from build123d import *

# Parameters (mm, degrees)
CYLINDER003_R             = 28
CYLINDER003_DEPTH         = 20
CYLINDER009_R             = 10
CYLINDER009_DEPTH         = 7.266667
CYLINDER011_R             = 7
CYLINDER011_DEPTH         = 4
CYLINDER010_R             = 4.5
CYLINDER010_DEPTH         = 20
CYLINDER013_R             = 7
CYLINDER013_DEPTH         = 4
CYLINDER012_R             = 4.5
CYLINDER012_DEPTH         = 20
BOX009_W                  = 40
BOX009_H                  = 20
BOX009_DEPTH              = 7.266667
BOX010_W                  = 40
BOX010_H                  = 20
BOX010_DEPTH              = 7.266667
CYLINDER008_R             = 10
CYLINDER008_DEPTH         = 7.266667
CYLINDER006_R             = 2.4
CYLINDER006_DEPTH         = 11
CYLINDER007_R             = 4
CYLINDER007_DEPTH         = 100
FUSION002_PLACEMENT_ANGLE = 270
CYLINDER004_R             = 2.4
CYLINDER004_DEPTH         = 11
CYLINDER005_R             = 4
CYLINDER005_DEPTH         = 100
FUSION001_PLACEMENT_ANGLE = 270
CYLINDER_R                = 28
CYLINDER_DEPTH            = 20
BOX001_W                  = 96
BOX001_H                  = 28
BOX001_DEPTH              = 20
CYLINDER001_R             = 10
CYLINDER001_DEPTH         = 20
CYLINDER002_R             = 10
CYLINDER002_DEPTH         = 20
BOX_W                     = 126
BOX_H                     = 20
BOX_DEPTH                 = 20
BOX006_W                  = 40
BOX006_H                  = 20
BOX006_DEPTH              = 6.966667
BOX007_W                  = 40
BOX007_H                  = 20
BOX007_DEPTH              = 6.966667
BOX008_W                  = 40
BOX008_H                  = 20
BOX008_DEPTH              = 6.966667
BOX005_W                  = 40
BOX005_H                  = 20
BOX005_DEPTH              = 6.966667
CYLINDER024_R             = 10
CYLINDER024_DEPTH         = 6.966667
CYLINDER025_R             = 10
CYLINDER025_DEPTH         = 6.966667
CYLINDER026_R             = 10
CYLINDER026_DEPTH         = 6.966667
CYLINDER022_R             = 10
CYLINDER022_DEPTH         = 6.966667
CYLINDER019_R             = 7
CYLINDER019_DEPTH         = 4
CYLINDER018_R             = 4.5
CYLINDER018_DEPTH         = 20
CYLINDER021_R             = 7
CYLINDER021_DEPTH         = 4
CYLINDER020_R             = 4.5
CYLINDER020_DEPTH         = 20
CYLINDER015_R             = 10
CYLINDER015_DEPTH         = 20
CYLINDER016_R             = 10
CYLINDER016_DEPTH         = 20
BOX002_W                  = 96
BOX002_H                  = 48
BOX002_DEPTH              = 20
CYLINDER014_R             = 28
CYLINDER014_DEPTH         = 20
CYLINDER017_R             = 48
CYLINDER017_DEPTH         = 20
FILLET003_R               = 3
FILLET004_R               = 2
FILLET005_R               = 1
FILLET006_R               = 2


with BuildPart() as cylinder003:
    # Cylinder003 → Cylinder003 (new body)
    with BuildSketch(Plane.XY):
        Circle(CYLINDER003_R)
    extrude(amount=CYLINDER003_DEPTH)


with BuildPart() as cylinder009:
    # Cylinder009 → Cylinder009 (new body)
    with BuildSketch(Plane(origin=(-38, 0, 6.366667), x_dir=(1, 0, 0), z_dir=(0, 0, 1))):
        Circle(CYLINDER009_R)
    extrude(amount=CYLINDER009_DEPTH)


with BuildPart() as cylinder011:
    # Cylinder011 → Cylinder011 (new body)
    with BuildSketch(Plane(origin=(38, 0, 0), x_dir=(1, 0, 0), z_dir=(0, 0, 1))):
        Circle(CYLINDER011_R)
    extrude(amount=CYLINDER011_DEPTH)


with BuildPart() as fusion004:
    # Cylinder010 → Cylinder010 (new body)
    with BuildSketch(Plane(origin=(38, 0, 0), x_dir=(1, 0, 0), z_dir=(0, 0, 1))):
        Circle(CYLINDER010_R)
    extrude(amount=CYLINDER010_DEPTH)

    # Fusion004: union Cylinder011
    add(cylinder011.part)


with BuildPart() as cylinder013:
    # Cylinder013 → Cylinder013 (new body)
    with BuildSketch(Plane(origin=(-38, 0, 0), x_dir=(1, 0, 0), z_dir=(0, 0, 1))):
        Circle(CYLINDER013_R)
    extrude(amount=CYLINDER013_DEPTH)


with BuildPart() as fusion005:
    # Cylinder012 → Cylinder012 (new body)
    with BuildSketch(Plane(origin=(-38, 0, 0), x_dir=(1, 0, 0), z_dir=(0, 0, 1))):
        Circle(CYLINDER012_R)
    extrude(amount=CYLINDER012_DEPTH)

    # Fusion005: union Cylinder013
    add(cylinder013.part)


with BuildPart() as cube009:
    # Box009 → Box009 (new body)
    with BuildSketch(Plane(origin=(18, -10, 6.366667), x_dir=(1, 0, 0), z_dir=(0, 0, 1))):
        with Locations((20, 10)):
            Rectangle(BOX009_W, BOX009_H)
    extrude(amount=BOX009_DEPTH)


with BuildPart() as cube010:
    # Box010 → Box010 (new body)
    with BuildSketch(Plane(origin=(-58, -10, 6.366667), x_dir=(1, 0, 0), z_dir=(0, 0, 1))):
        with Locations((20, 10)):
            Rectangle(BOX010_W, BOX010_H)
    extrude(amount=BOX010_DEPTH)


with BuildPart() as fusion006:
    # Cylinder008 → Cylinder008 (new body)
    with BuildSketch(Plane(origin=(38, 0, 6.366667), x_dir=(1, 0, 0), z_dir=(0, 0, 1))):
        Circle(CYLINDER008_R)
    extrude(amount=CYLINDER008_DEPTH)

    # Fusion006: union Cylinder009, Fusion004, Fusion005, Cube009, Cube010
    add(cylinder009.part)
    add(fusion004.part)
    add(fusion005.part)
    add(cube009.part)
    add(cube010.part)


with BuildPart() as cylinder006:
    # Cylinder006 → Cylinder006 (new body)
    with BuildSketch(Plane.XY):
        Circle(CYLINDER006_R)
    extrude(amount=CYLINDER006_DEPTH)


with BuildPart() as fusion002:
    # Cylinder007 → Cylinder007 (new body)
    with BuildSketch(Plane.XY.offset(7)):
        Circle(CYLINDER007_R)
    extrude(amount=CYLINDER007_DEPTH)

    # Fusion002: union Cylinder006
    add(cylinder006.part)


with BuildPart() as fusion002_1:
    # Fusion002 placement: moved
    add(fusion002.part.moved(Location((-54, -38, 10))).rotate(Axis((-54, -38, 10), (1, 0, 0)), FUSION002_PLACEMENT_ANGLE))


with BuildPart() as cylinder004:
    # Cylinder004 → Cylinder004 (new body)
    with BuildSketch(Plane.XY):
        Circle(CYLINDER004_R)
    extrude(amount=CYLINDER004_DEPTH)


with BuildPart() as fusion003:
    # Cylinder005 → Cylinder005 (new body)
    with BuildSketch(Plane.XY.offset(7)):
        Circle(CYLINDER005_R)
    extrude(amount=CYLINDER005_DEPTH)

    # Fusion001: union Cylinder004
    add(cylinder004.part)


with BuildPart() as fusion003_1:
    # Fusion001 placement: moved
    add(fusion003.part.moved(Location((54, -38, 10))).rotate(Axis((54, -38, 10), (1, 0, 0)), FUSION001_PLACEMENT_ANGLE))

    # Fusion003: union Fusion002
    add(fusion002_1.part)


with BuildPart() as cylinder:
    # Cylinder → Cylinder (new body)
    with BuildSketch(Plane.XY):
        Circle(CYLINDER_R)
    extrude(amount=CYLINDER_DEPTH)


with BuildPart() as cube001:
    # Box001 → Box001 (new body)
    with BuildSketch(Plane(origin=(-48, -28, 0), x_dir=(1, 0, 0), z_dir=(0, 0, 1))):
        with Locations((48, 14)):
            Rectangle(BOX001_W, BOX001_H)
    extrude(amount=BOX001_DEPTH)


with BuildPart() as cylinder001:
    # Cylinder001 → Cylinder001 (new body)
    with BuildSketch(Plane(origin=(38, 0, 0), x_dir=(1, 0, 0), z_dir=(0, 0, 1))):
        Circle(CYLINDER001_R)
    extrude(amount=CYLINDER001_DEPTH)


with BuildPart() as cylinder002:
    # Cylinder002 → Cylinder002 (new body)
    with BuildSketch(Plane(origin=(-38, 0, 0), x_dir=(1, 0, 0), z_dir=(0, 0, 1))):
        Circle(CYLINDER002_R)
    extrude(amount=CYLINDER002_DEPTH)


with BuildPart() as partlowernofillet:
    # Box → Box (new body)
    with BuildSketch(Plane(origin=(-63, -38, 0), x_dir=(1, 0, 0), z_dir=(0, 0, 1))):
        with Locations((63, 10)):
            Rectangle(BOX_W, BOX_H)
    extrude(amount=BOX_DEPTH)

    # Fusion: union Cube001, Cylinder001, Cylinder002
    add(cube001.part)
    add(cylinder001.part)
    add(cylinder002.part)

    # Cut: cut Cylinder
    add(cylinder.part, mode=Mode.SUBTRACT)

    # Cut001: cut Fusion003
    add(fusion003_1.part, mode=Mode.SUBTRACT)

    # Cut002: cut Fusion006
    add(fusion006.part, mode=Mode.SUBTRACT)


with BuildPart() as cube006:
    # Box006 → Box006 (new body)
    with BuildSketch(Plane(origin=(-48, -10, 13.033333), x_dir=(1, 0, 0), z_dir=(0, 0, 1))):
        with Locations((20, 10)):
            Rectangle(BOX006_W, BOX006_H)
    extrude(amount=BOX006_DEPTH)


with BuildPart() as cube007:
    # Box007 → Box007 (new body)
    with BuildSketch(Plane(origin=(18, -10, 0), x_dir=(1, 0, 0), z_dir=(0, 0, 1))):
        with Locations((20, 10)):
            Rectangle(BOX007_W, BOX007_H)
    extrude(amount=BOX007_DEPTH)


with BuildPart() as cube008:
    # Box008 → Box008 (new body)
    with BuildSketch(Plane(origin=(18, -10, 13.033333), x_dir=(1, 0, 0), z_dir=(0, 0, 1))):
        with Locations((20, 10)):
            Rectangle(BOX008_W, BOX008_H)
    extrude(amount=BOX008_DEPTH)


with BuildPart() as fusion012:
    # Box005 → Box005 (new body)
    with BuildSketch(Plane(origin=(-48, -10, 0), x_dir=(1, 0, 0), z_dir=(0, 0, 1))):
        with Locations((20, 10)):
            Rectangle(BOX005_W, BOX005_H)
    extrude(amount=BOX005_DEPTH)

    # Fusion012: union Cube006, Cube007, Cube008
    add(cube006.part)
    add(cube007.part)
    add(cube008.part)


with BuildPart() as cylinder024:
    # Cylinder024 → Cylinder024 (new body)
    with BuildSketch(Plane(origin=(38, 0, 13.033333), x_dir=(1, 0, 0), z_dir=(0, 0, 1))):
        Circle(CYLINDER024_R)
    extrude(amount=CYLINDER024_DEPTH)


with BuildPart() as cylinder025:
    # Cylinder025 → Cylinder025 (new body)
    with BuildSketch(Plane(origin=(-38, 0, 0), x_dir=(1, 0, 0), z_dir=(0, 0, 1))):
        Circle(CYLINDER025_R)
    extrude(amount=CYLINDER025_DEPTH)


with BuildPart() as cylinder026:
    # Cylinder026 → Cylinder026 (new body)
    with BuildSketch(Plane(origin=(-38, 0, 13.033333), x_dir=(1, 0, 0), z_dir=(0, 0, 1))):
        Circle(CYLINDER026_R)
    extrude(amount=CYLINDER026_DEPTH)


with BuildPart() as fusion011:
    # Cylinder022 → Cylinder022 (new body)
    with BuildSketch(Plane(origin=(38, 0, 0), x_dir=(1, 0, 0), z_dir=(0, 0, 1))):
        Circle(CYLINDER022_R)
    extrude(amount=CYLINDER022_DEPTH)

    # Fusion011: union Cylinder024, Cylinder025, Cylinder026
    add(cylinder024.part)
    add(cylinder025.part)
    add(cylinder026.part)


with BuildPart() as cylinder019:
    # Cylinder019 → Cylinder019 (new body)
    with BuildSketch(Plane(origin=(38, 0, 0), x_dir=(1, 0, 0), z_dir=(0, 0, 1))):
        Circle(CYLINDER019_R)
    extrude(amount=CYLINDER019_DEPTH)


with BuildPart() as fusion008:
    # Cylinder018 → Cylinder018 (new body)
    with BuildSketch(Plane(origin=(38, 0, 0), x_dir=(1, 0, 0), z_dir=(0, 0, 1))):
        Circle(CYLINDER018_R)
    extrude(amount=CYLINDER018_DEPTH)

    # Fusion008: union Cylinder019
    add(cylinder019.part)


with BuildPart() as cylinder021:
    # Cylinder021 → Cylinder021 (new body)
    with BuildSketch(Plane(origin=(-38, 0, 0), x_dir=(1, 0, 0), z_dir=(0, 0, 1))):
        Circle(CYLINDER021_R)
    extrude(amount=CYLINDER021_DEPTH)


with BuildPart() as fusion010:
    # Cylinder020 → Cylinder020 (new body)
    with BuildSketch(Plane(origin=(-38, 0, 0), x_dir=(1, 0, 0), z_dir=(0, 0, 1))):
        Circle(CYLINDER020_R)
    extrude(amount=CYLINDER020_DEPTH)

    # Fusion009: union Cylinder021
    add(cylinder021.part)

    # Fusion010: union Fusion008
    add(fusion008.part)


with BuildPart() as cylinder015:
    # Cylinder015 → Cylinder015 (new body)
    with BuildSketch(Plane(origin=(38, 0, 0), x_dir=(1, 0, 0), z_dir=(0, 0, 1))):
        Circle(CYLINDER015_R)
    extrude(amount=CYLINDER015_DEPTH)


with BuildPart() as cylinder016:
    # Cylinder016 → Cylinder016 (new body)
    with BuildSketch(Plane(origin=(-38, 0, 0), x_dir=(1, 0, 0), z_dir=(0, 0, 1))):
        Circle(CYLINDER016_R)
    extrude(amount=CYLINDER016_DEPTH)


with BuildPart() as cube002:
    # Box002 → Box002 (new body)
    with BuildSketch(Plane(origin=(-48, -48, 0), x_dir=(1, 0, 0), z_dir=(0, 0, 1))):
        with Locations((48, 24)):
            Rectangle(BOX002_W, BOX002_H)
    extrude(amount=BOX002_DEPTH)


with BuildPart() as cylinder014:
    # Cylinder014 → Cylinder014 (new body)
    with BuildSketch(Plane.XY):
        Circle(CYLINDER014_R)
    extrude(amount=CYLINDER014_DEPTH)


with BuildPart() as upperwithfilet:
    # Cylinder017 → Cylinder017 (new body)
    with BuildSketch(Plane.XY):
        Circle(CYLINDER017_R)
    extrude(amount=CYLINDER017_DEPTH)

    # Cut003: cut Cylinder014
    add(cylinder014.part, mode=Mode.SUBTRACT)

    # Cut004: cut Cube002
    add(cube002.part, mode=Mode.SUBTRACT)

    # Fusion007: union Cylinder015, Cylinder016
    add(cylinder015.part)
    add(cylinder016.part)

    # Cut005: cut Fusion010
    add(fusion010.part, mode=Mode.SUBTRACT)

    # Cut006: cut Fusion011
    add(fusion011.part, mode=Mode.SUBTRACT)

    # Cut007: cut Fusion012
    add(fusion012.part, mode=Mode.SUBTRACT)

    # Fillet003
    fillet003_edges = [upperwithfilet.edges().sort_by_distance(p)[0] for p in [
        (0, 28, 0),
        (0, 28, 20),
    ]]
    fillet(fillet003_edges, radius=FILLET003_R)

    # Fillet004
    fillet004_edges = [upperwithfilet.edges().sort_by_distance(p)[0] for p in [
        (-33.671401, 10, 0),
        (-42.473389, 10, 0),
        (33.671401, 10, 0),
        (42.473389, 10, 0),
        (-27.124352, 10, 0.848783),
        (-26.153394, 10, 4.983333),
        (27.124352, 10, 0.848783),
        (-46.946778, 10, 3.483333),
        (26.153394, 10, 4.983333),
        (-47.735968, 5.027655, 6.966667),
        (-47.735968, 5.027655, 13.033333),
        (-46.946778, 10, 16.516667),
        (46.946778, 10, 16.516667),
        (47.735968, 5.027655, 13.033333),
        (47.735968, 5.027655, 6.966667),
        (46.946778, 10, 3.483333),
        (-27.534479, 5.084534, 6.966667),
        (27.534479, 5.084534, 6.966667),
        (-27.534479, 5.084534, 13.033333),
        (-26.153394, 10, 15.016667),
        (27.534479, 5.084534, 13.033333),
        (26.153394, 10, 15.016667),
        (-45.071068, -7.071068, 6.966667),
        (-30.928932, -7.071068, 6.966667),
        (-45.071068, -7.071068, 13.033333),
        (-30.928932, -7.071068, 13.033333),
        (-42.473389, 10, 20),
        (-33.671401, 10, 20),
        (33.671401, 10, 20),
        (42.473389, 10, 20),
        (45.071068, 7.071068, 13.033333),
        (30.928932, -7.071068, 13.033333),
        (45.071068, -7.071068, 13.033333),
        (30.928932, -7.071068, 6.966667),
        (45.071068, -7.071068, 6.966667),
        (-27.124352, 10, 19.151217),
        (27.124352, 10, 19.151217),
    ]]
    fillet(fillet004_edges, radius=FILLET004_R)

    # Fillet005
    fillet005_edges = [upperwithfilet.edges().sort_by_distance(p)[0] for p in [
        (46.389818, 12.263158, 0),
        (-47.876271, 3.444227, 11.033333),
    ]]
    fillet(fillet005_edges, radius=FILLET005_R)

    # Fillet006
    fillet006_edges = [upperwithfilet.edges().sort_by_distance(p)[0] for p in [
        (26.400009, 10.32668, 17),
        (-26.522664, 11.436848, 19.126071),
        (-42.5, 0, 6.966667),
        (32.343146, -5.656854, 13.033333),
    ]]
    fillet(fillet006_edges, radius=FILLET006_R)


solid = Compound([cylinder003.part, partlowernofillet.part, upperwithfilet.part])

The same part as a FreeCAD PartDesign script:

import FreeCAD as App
import Part
import Sketcher
Q = App.Units.Quantity


def edges_at(feature, points):
    """Names of the edges that pass closest to the given points."""
    edges = feature.Shape.Edges
    near = lambda p: min(range(len(edges)), key=lambda i: edges[i].distToShape(Part.Vertex(*p))[0])
    return sorted({f"Edge{near(p) + 1}" for p in points})


def add_polygon(sketch, points):
    """Adds a closed chain of lines whose ends are joined by coincident constraints."""
    first, n = sketch.GeometryCount, len(points)
    for a, b in zip(points, points[1:] + points[:1]):
        sketch.addGeometry(Part.LineSegment(App.Vector(*a, 0), App.Vector(*b, 0)), False)
    for i in range(n):
        sketch.addConstraint(Sketcher.Constraint("Coincident", first + i, 2, first + (i + 1) % n, 1))

doc = App.newDocument("Part")
body = doc.addObject("PartDesign::Body", "Body")

sketch1 = doc.addObject("Sketcher::SketchObject", "Sketch")
body.addObject(sketch1)
sketch1.AttachmentSupport = (doc.XY_Plane, [""])
sketch1.MapMode = "FlatFace"
sketch1.addGeometry(Part.Circle(App.Vector(0, 0, 0), App.Vector(0, 0, 1), 28), False)
sketch1.addConstraint([
    Sketcher.Constraint("Coincident", 0, 3, -1, 1),
    Sketcher.Constraint("Diameter", 0, Q("56 mm")),
])
pad1 = doc.addObject("PartDesign::Pad", "Pad")
body.addObject(pad1)
pad1.Profile = sketch1
pad1.Length = 20
body2 = doc.addObject("PartDesign::Body", "Body001")

sketch2 = doc.addObject("Sketcher::SketchObject", "Sketch001")
body2.addObject(sketch2)
sketch2.AttachmentSupport = (doc.getObject("XY_Plane001"), [""])
sketch2.MapMode = "FlatFace"
sketch2.AttachmentOffset = App.Placement(App.Vector(0, 0, 6.366667), App.Rotation())
sketch2.addGeometry(Part.Circle(App.Vector(-38, 0, 0), App.Vector(0, 0, 1), 10), False)
sketch2.addConstraint([
    Sketcher.Constraint("PointOnObject", 0, 3, -1),
    Sketcher.Constraint("Diameter", 0, Q("20 mm")),
    Sketcher.Constraint("DistanceX", 0, 3, -1, 1, Q("38 mm")),
])
pad2 = doc.addObject("PartDesign::Pad", "Pad001")
body2.addObject(pad2)
pad2.Profile = sketch2
pad2.Length = 7.266667
body3 = doc.addObject("PartDesign::Body", "Body002")

sketch3 = doc.addObject("Sketcher::SketchObject", "Sketch002")
body3.addObject(sketch3)
sketch3.AttachmentSupport = (doc.getObject("XY_Plane002"), [""])
sketch3.MapMode = "FlatFace"
sketch3.addGeometry(Part.Circle(App.Vector(38, 0, 0), App.Vector(0, 0, 1), 7), False)
sketch3.addConstraint([
    Sketcher.Constraint("PointOnObject", 0, 3, -1),
    Sketcher.Constraint("Diameter", 0, Q("14 mm")),
    Sketcher.Constraint("DistanceX", -1, 1, 0, 3, Q("38 mm")),
])
pad3 = doc.addObject("PartDesign::Pad", "Pad002")
body3.addObject(pad3)
pad3.Profile = sketch3
pad3.Length = 4
body4 = doc.addObject("PartDesign::Body", "Body003")

sketch4 = doc.addObject("Sketcher::SketchObject", "Sketch003")
body4.addObject(sketch4)
sketch4.AttachmentSupport = (doc.getObject("XY_Plane003"), [""])
sketch4.MapMode = "FlatFace"
sketch4.addGeometry(Part.Circle(App.Vector(38, 0, 0), App.Vector(0, 0, 1), 4.5), False)
sketch4.addConstraint([
    Sketcher.Constraint("PointOnObject", 0, 3, -1),
    Sketcher.Constraint("Diameter", 0, Q("9 mm")),
    Sketcher.Constraint("DistanceX", -1, 1, 0, 3, Q("38 mm")),
])
pad4 = doc.addObject("PartDesign::Pad", "Pad003")
body4.addObject(pad4)
pad4.Profile = sketch4
pad4.Length = 20
doc.recompute()

boolean = doc.addObject("PartDesign::Boolean", "Boolean")
body4.addObject(boolean)
boolean.Type = "Fuse"
boolean.addObjects([body3])
body5 = doc.addObject("PartDesign::Body", "Body004")

sketch5 = doc.addObject("Sketcher::SketchObject", "Sketch004")
body5.addObject(sketch5)
sketch5.AttachmentSupport = (doc.getObject("XY_Plane004"), [""])
sketch5.MapMode = "FlatFace"
sketch5.addGeometry(Part.Circle(App.Vector(-38, 0, 0), App.Vector(0, 0, 1), 7), False)
sketch5.addConstraint([
    Sketcher.Constraint("PointOnObject", 0, 3, -1),
    Sketcher.Constraint("Diameter", 0, Q("14 mm")),
    Sketcher.Constraint("DistanceX", 0, 3, -1, 1, Q("38 mm")),
])
pad5 = doc.addObject("PartDesign::Pad", "Pad004")
body5.addObject(pad5)
pad5.Profile = sketch5
pad5.Length = 4
body6 = doc.addObject("PartDesign::Body", "Body005")

sketch6 = doc.addObject("Sketcher::SketchObject", "Sketch005")
body6.addObject(sketch6)
sketch6.AttachmentSupport = (doc.getObject("XY_Plane005"), [""])
sketch6.MapMode = "FlatFace"
sketch6.addGeometry(Part.Circle(App.Vector(-38, 0, 0), App.Vector(0, 0, 1), 4.5), False)
sketch6.addConstraint([
    Sketcher.Constraint("PointOnObject", 0, 3, -1),
    Sketcher.Constraint("Diameter", 0, Q("9 mm")),
    Sketcher.Constraint("DistanceX", 0, 3, -1, 1, Q("38 mm")),
])
pad6 = doc.addObject("PartDesign::Pad", "Pad005")
body6.addObject(pad6)
pad6.Profile = sketch6
pad6.Length = 20
doc.recompute()

boolean2 = doc.addObject("PartDesign::Boolean", "Boolean001")
body6.addObject(boolean2)
boolean2.Type = "Fuse"
boolean2.addObjects([body5])
body7 = doc.addObject("PartDesign::Body", "Body006")

sketch7 = doc.addObject("Sketcher::SketchObject", "Sketch006")
body7.addObject(sketch7)
sketch7.AttachmentSupport = (doc.getObject("XY_Plane006"), [""])
sketch7.MapMode = "FlatFace"
sketch7.AttachmentOffset = App.Placement(App.Vector(0, 0, 6.366667), App.Rotation())
add_polygon(sketch7, [(18, 10), (18, -10), (58, -10), (58, 10)])
sketch7.addConstraint([
    Sketcher.Constraint("Vertical", 0),
    Sketcher.Constraint("Horizontal", 1),
    Sketcher.Constraint("Vertical", 2),
    Sketcher.Constraint("Horizontal", 3),
    Sketcher.Constraint("DistanceX", 1, 1, 1, 2, Q("40 mm")),
    Sketcher.Constraint("DistanceY", 0, 2, 0, 1, Q("20 mm")),
    Sketcher.Constraint("DistanceX", -1, 1, 0, 2, Q("18 mm")),
    Sketcher.Constraint("DistanceY", 0, 2, -1, 1, Q("10 mm")),
])
pad7 = doc.addObject("PartDesign::Pad", "Pad006")
body7.addObject(pad7)
pad7.Profile = sketch7
pad7.Length = 7.266667
body8 = doc.addObject("PartDesign::Body", "Body007")

sketch8 = doc.addObject("Sketcher::SketchObject", "Sketch007")
body8.addObject(sketch8)
sketch8.AttachmentSupport = (doc.getObject("XY_Plane007"), [""])
sketch8.MapMode = "FlatFace"
sketch8.AttachmentOffset = App.Placement(App.Vector(0, 0, 6.366667), App.Rotation())
add_polygon(sketch8, [(-58, 10), (-58, -10), (-18, -10), (-18, 10)])
sketch8.addConstraint([
    Sketcher.Constraint("Vertical", 0),
    Sketcher.Constraint("Horizontal", 1),
    Sketcher.Constraint("Vertical", 2),
    Sketcher.Constraint("Horizontal", 3),
    Sketcher.Constraint("DistanceX", 1, 1, 1, 2, Q("40 mm")),
    Sketcher.Constraint("DistanceY", 0, 2, 0, 1, Q("20 mm")),
    Sketcher.Constraint("DistanceX", 0, 2, -1, 1, Q("58 mm")),
    Sketcher.Constraint("DistanceY", 0, 2, -1, 1, Q("10 mm")),
])
pad8 = doc.addObject("PartDesign::Pad", "Pad007")
body8.addObject(pad8)
pad8.Profile = sketch8
pad8.Length = 7.266667
body9 = doc.addObject("PartDesign::Body", "Body008")
body9.AllowCompound = True

sketch9 = doc.addObject("Sketcher::SketchObject", "Sketch008")
body9.addObject(sketch9)
sketch9.AttachmentSupport = (doc.getObject("XY_Plane008"), [""])
sketch9.MapMode = "FlatFace"
sketch9.AttachmentOffset = App.Placement(App.Vector(0, 0, 6.366667), App.Rotation())
sketch9.addGeometry(Part.Circle(App.Vector(38, 0, 0), App.Vector(0, 0, 1), 10), False)
sketch9.addConstraint([
    Sketcher.Constraint("PointOnObject", 0, 3, -1),
    Sketcher.Constraint("Diameter", 0, Q("20 mm")),
    Sketcher.Constraint("DistanceX", -1, 1, 0, 3, Q("38 mm")),
])
pad9 = doc.addObject("PartDesign::Pad", "Pad008")
body9.addObject(pad9)
pad9.Profile = sketch9
pad9.Length = 7.266667
doc.recompute()

boolean3 = doc.addObject("PartDesign::Boolean", "Boolean002")
body9.addObject(boolean3)
boolean3.Type = "Fuse"
boolean3.addObjects([body2])
doc.recompute()

boolean4 = doc.addObject("PartDesign::Boolean", "Boolean003")
body9.addObject(boolean4)
boolean4.Type = "Fuse"
boolean4.addObjects([body4])
doc.recompute()

boolean5 = doc.addObject("PartDesign::Boolean", "Boolean004")
body9.addObject(boolean5)
boolean5.Type = "Fuse"
boolean5.addObjects([body6])
doc.recompute()

boolean6 = doc.addObject("PartDesign::Boolean", "Boolean005")
body9.addObject(boolean6)
boolean6.Type = "Fuse"
boolean6.addObjects([body7])
doc.recompute()

boolean7 = doc.addObject("PartDesign::Boolean", "Boolean006")
body9.addObject(boolean7)
boolean7.Type = "Fuse"
boolean7.addObjects([body8])
body10 = doc.addObject("PartDesign::Body", "Body009")

sketch10 = doc.addObject("Sketcher::SketchObject", "Sketch009")
body10.addObject(sketch10)
sketch10.AttachmentSupport = (doc.getObject("XY_Plane009"), [""])
sketch10.MapMode = "FlatFace"
sketch10.addGeometry(Part.Circle(App.Vector(0, 0, 0), App.Vector(0, 0, 1), 2.4), False)
sketch10.addConstraint([
    Sketcher.Constraint("Coincident", 0, 3, -1, 1),
    Sketcher.Constraint("Diameter", 0, Q("4.8 mm")),
])
pad10 = doc.addObject("PartDesign::Pad", "Pad009")
body10.addObject(pad10)
pad10.Profile = sketch10
pad10.Length = 11
body11 = doc.addObject("PartDesign::Body", "Body010")

sketch11 = doc.addObject("Sketcher::SketchObject", "Sketch010")
body11.addObject(sketch11)
sketch11.AttachmentSupport = (doc.getObject("XY_Plane010"), [""])
sketch11.MapMode = "FlatFace"
sketch11.AttachmentOffset = App.Placement(App.Vector(0, 0, 7), App.Rotation())
sketch11.addGeometry(Part.Circle(App.Vector(0, 0, 0), App.Vector(0, 0, 1), 4), False)
sketch11.addConstraint([
    Sketcher.Constraint("Coincident", 0, 3, -1, 1),
    Sketcher.Constraint("Diameter", 0, Q("8 mm")),
])
pad11 = doc.addObject("PartDesign::Pad", "Pad010")
body11.addObject(pad11)
pad11.Profile = sketch11
pad11.Length = 100
doc.recompute()

boolean8 = doc.addObject("PartDesign::Boolean", "Boolean007")
body11.addObject(boolean8)
boolean8.Type = "Fuse"
boolean8.addObjects([body10])
body12 = doc.addObject("PartDesign::Body", "Body011")
doc.recompute()

body11.Placement = App.Placement(App.Vector(-54, -38, 10), App.Rotation(App.Vector(1, 0, 0), 270))
boolean9 = doc.addObject("PartDesign::Boolean", "Boolean008")
body12.addObject(boolean9)
boolean9.Type = "Fuse"
boolean9.addObjects([body11])
body13 = doc.addObject("PartDesign::Body", "Body012")

sketch12 = doc.addObject("Sketcher::SketchObject", "Sketch011")
body13.addObject(sketch12)
sketch12.AttachmentSupport = (doc.getObject("XY_Plane012"), [""])
sketch12.MapMode = "FlatFace"
sketch12.addGeometry(Part.Circle(App.Vector(0, 0, 0), App.Vector(0, 0, 1), 2.4), False)
sketch12.addConstraint([
    Sketcher.Constraint("Coincident", 0, 3, -1, 1),
    Sketcher.Constraint("Diameter", 0, Q("4.8 mm")),
])
pad12 = doc.addObject("PartDesign::Pad", "Pad011")
body13.addObject(pad12)
pad12.Profile = sketch12
pad12.Length = 11
body14 = doc.addObject("PartDesign::Body", "Body013")

sketch13 = doc.addObject("Sketcher::SketchObject", "Sketch012")
body14.addObject(sketch13)
sketch13.AttachmentSupport = (doc.getObject("XY_Plane013"), [""])
sketch13.MapMode = "FlatFace"
sketch13.AttachmentOffset = App.Placement(App.Vector(0, 0, 7), App.Rotation())
sketch13.addGeometry(Part.Circle(App.Vector(0, 0, 0), App.Vector(0, 0, 1), 4), False)
sketch13.addConstraint([
    Sketcher.Constraint("Coincident", 0, 3, -1, 1),
    Sketcher.Constraint("Diameter", 0, Q("8 mm")),
])
pad13 = doc.addObject("PartDesign::Pad", "Pad012")
body14.addObject(pad13)
pad13.Profile = sketch13
pad13.Length = 100
doc.recompute()

boolean10 = doc.addObject("PartDesign::Boolean", "Boolean009")
body14.addObject(boolean10)
boolean10.Type = "Fuse"
boolean10.addObjects([body13])
body15 = doc.addObject("PartDesign::Body", "Body014")
body15.AllowCompound = True
doc.recompute()

body14.Placement = App.Placement(App.Vector(54, -38, 10), App.Rotation(App.Vector(1, 0, 0), 270))
boolean11 = doc.addObject("PartDesign::Boolean", "Boolean010")
body15.addObject(boolean11)
boolean11.Type = "Fuse"
boolean11.addObjects([body14])
doc.recompute()

boolean12 = doc.addObject("PartDesign::Boolean", "Boolean011")
body15.addObject(boolean12)
boolean12.Type = "Fuse"
boolean12.addObjects([body12])
body16 = doc.addObject("PartDesign::Body", "Body015")

sketch14 = doc.addObject("Sketcher::SketchObject", "Sketch013")
body16.addObject(sketch14)
sketch14.AttachmentSupport = (doc.getObject("XY_Plane015"), [""])
sketch14.MapMode = "FlatFace"
sketch14.addGeometry(Part.Circle(App.Vector(0, 0, 0), App.Vector(0, 0, 1), 28), False)
sketch14.addConstraint([
    Sketcher.Constraint("Coincident", 0, 3, -1, 1),
    Sketcher.Constraint("Diameter", 0, Q("56 mm")),
])
pad14 = doc.addObject("PartDesign::Pad", "Pad013")
body16.addObject(pad14)
pad14.Profile = sketch14
pad14.Length = 20
body17 = doc.addObject("PartDesign::Body", "Body016")

sketch15 = doc.addObject("Sketcher::SketchObject", "Sketch014")
body17.addObject(sketch15)
sketch15.AttachmentSupport = (doc.getObject("XY_Plane016"), [""])
sketch15.MapMode = "FlatFace"
add_polygon(sketch15, [(-48, 0), (-48, -28), (48, -28), (48, 0)])
sketch15.addConstraint([
    Sketcher.Constraint("Vertical", 0),
    Sketcher.Constraint("Horizontal", 1),
    Sketcher.Constraint("Vertical", 2),
    Sketcher.Constraint("Horizontal", 3),
    Sketcher.Constraint("Symmetric", 2, 2, 3, 2, -1, 1),
    Sketcher.Constraint("DistanceX", 1, 1, 1, 2, Q("96 mm")),
    Sketcher.Constraint("DistanceY", 0, 2, 0, 1, Q("28 mm")),
])
pad15 = doc.addObject("PartDesign::Pad", "Pad014")
body17.addObject(pad15)
pad15.Profile = sketch15
pad15.Length = 20
body18 = doc.addObject("PartDesign::Body", "Body017")

sketch16 = doc.addObject("Sketcher::SketchObject", "Sketch015")
body18.addObject(sketch16)
sketch16.AttachmentSupport = (doc.getObject("XY_Plane017"), [""])
sketch16.MapMode = "FlatFace"
sketch16.addGeometry(Part.Circle(App.Vector(38, 0, 0), App.Vector(0, 0, 1), 10), False)
sketch16.addConstraint([
    Sketcher.Constraint("PointOnObject", 0, 3, -1),
    Sketcher.Constraint("Diameter", 0, Q("20 mm")),
    Sketcher.Constraint("DistanceX", -1, 1, 0, 3, Q("38 mm")),
])
pad16 = doc.addObject("PartDesign::Pad", "Pad015")
body18.addObject(pad16)
pad16.Profile = sketch16
pad16.Length = 20
body19 = doc.addObject("PartDesign::Body", "Body018")

sketch17 = doc.addObject("Sketcher::SketchObject", "Sketch016")
body19.addObject(sketch17)
sketch17.AttachmentSupport = (doc.getObject("XY_Plane018"), [""])
sketch17.MapMode = "FlatFace"
sketch17.addGeometry(Part.Circle(App.Vector(-38, 0, 0), App.Vector(0, 0, 1), 10), False)
sketch17.addConstraint([
    Sketcher.Constraint("PointOnObject", 0, 3, -1),
    Sketcher.Constraint("Diameter", 0, Q("20 mm")),
    Sketcher.Constraint("DistanceX", 0, 3, -1, 1, Q("38 mm")),
])
pad17 = doc.addObject("PartDesign::Pad", "Pad016")
body19.addObject(pad17)
pad17.Profile = sketch17
pad17.Length = 20
body20 = doc.addObject("PartDesign::Body", "Body019")

sketch18 = doc.addObject("Sketcher::SketchObject", "Sketch017")
body20.addObject(sketch18)
sketch18.AttachmentSupport = (doc.getObject("XY_Plane019"), [""])
sketch18.MapMode = "FlatFace"
add_polygon(sketch18, [(-63, -18), (-63, -38), (63, -38), (63, -18)])
sketch18.addConstraint([
    Sketcher.Constraint("Vertical", 0),
    Sketcher.Constraint("Horizontal", 1),
    Sketcher.Constraint("Vertical", 2),
    Sketcher.Constraint("Horizontal", 3),
    Sketcher.Constraint("DistanceX", 1, 1, 1, 2, Q("126 mm")),
    Sketcher.Constraint("DistanceY", 0, 2, 0, 1, Q("20 mm")),
    Sketcher.Constraint("DistanceX", 0, 2, -1, 1, Q("63 mm")),
    Sketcher.Constraint("DistanceY", 0, 2, -1, 1, Q("38 mm")),
])
pad18 = doc.addObject("PartDesign::Pad", "Pad017")
body20.addObject(pad18)
pad18.Profile = sketch18
pad18.Length = 20
doc.recompute()

boolean13 = doc.addObject("PartDesign::Boolean", "Boolean012")
body20.addObject(boolean13)
boolean13.Type = "Fuse"
boolean13.addObjects([body17])
doc.recompute()

boolean14 = doc.addObject("PartDesign::Boolean", "Boolean013")
body20.addObject(boolean14)
boolean14.Type = "Fuse"
boolean14.addObjects([body18])
doc.recompute()

boolean15 = doc.addObject("PartDesign::Boolean", "Boolean014")
body20.addObject(boolean15)
boolean15.Type = "Fuse"
boolean15.addObjects([body19])
doc.recompute()

boolean16 = doc.addObject("PartDesign::Boolean", "Boolean015")
body20.addObject(boolean16)
boolean16.Type = "Cut"
boolean16.addObjects([body16])
doc.recompute()

boolean17 = doc.addObject("PartDesign::Boolean", "Boolean016")
body20.addObject(boolean17)
boolean17.Type = "Cut"
boolean17.addObjects([body15])
doc.recompute()

boolean18 = doc.addObject("PartDesign::Boolean", "Boolean017")
body20.addObject(boolean18)
boolean18.Type = "Cut"
boolean18.addObjects([body9])
body21 = doc.addObject("PartDesign::Body", "Body020")

sketch19 = doc.addObject("Sketcher::SketchObject", "Sketch018")
body21.addObject(sketch19)
sketch19.AttachmentSupport = (doc.getObject("XY_Plane020"), [""])
sketch19.MapMode = "FlatFace"
sketch19.AttachmentOffset = App.Placement(App.Vector(0, 0, 13.033333), App.Rotation())
add_polygon(sketch19, [(-48, 10), (-48, -10), (-8, -10), (-8, 10)])
sketch19.addConstraint([
    Sketcher.Constraint("Vertical", 0),
    Sketcher.Constraint("Horizontal", 1),
    Sketcher.Constraint("Vertical", 2),
    Sketcher.Constraint("Horizontal", 3),
    Sketcher.Constraint("DistanceX", 1, 1, 1, 2, Q("40 mm")),
    Sketcher.Constraint("DistanceY", 0, 2, 0, 1, Q("20 mm")),
    Sketcher.Constraint("DistanceX", 0, 2, -1, 1, Q("48 mm")),
    Sketcher.Constraint("DistanceY", 0, 2, -1, 1, Q("10 mm")),
])
pad19 = doc.addObject("PartDesign::Pad", "Pad018")
body21.addObject(pad19)
pad19.Profile = sketch19
pad19.Length = 6.966667
body22 = doc.addObject("PartDesign::Body", "Body021")

sketch20 = doc.addObject("Sketcher::SketchObject", "Sketch019")
body22.addObject(sketch20)
sketch20.AttachmentSupport = (doc.getObject("XY_Plane021"), [""])
sketch20.MapMode = "FlatFace"
add_polygon(sketch20, [(18, 10), (18, -10), (58, -10), (58, 10)])
sketch20.addConstraint([
    Sketcher.Constraint("Vertical", 0),
    Sketcher.Constraint("Horizontal", 1),
    Sketcher.Constraint("Vertical", 2),
    Sketcher.Constraint("Horizontal", 3),
    Sketcher.Constraint("DistanceX", 1, 1, 1, 2, Q("40 mm")),
    Sketcher.Constraint("DistanceY", 0, 2, 0, 1, Q("20 mm")),
    Sketcher.Constraint("DistanceX", -1, 1, 0, 2, Q("18 mm")),
    Sketcher.Constraint("DistanceY", 0, 2, -1, 1, Q("10 mm")),
])
pad20 = doc.addObject("PartDesign::Pad", "Pad019")
body22.addObject(pad20)
pad20.Profile = sketch20
pad20.Length = 6.966667
body23 = doc.addObject("PartDesign::Body", "Body022")

sketch21 = doc.addObject("Sketcher::SketchObject", "Sketch020")
body23.addObject(sketch21)
sketch21.AttachmentSupport = (doc.getObject("XY_Plane022"), [""])
sketch21.MapMode = "FlatFace"
sketch21.AttachmentOffset = App.Placement(App.Vector(0, 0, 13.033333), App.Rotation())
add_polygon(sketch21, [(18, 10), (18, -10), (58, -10), (58, 10)])
sketch21.addConstraint([
    Sketcher.Constraint("Vertical", 0),
    Sketcher.Constraint("Horizontal", 1),
    Sketcher.Constraint("Vertical", 2),
    Sketcher.Constraint("Horizontal", 3),
    Sketcher.Constraint("DistanceX", 1, 1, 1, 2, Q("40 mm")),
    Sketcher.Constraint("DistanceY", 0, 2, 0, 1, Q("20 mm")),
    Sketcher.Constraint("DistanceX", -1, 1, 0, 2, Q("18 mm")),
    Sketcher.Constraint("DistanceY", 0, 2, -1, 1, Q("10 mm")),
])
pad21 = doc.addObject("PartDesign::Pad", "Pad020")
body23.addObject(pad21)
pad21.Profile = sketch21
pad21.Length = 6.966667
body24 = doc.addObject("PartDesign::Body", "Body023")
body24.AllowCompound = True

sketch22 = doc.addObject("Sketcher::SketchObject", "Sketch021")
body24.addObject(sketch22)
sketch22.AttachmentSupport = (doc.getObject("XY_Plane023"), [""])
sketch22.MapMode = "FlatFace"
add_polygon(sketch22, [(-48, 10), (-48, -10), (-8, -10), (-8, 10)])
sketch22.addConstraint([
    Sketcher.Constraint("Vertical", 0),
    Sketcher.Constraint("Horizontal", 1),
    Sketcher.Constraint("Vertical", 2),
    Sketcher.Constraint("Horizontal", 3),
    Sketcher.Constraint("DistanceX", 1, 1, 1, 2, Q("40 mm")),
    Sketcher.Constraint("DistanceY", 0, 2, 0, 1, Q("20 mm")),
    Sketcher.Constraint("DistanceX", 0, 2, -1, 1, Q("48 mm")),
    Sketcher.Constraint("DistanceY", 0, 2, -1, 1, Q("10 mm")),
])
pad22 = doc.addObject("PartDesign::Pad", "Pad021")
body24.addObject(pad22)
pad22.Profile = sketch22
pad22.Length = 6.966667
doc.recompute()

boolean19 = doc.addObject("PartDesign::Boolean", "Boolean018")
body24.addObject(boolean19)
boolean19.Type = "Fuse"
boolean19.addObjects([body21])
doc.recompute()

boolean20 = doc.addObject("PartDesign::Boolean", "Boolean019")
body24.addObject(boolean20)
boolean20.Type = "Fuse"
boolean20.addObjects([body22])
doc.recompute()

boolean21 = doc.addObject("PartDesign::Boolean", "Boolean020")
body24.addObject(boolean21)
boolean21.Type = "Fuse"
boolean21.addObjects([body23])
body25 = doc.addObject("PartDesign::Body", "Body024")

sketch23 = doc.addObject("Sketcher::SketchObject", "Sketch022")
body25.addObject(sketch23)
sketch23.AttachmentSupport = (doc.getObject("XY_Plane024"), [""])
sketch23.MapMode = "FlatFace"
sketch23.AttachmentOffset = App.Placement(App.Vector(0, 0, 13.033333), App.Rotation())
sketch23.addGeometry(Part.Circle(App.Vector(38, 0, 0), App.Vector(0, 0, 1), 10), False)
sketch23.addConstraint([
    Sketcher.Constraint("PointOnObject", 0, 3, -1),
    Sketcher.Constraint("Diameter", 0, Q("20 mm")),
    Sketcher.Constraint("DistanceX", -1, 1, 0, 3, Q("38 mm")),
])
pad23 = doc.addObject("PartDesign::Pad", "Pad022")
body25.addObject(pad23)
pad23.Profile = sketch23
pad23.Length = 6.966667
body26 = doc.addObject("PartDesign::Body", "Body025")

sketch24 = doc.addObject("Sketcher::SketchObject", "Sketch023")
body26.addObject(sketch24)
sketch24.AttachmentSupport = (doc.getObject("XY_Plane025"), [""])
sketch24.MapMode = "FlatFace"
sketch24.addGeometry(Part.Circle(App.Vector(-38, 0, 0), App.Vector(0, 0, 1), 10), False)
sketch24.addConstraint([
    Sketcher.Constraint("PointOnObject", 0, 3, -1),
    Sketcher.Constraint("Diameter", 0, Q("20 mm")),
    Sketcher.Constraint("DistanceX", 0, 3, -1, 1, Q("38 mm")),
])
pad24 = doc.addObject("PartDesign::Pad", "Pad023")
body26.addObject(pad24)
pad24.Profile = sketch24
pad24.Length = 6.966667
body27 = doc.addObject("PartDesign::Body", "Body026")

sketch25 = doc.addObject("Sketcher::SketchObject", "Sketch024")
body27.addObject(sketch25)
sketch25.AttachmentSupport = (doc.getObject("XY_Plane026"), [""])
sketch25.MapMode = "FlatFace"
sketch25.AttachmentOffset = App.Placement(App.Vector(0, 0, 13.033333), App.Rotation())
sketch25.addGeometry(Part.Circle(App.Vector(-38, 0, 0), App.Vector(0, 0, 1), 10), False)
sketch25.addConstraint([
    Sketcher.Constraint("PointOnObject", 0, 3, -1),
    Sketcher.Constraint("Diameter", 0, Q("20 mm")),
    Sketcher.Constraint("DistanceX", 0, 3, -1, 1, Q("38 mm")),
])
pad25 = doc.addObject("PartDesign::Pad", "Pad024")
body27.addObject(pad25)
pad25.Profile = sketch25
pad25.Length = 6.966667
body28 = doc.addObject("PartDesign::Body", "Body027")
body28.AllowCompound = True

sketch26 = doc.addObject("Sketcher::SketchObject", "Sketch025")
body28.addObject(sketch26)
sketch26.AttachmentSupport = (doc.getObject("XY_Plane027"), [""])
sketch26.MapMode = "FlatFace"
sketch26.addGeometry(Part.Circle(App.Vector(38, 0, 0), App.Vector(0, 0, 1), 10), False)
sketch26.addConstraint([
    Sketcher.Constraint("PointOnObject", 0, 3, -1),
    Sketcher.Constraint("Diameter", 0, Q("20 mm")),
    Sketcher.Constraint("DistanceX", -1, 1, 0, 3, Q("38 mm")),
])
pad26 = doc.addObject("PartDesign::Pad", "Pad025")
body28.addObject(pad26)
pad26.Profile = sketch26
pad26.Length = 6.966667
doc.recompute()

boolean22 = doc.addObject("PartDesign::Boolean", "Boolean021")
body28.addObject(boolean22)
boolean22.Type = "Fuse"
boolean22.addObjects([body25])
doc.recompute()

boolean23 = doc.addObject("PartDesign::Boolean", "Boolean022")
body28.addObject(boolean23)
boolean23.Type = "Fuse"
boolean23.addObjects([body26])
doc.recompute()

boolean24 = doc.addObject("PartDesign::Boolean", "Boolean023")
body28.addObject(boolean24)
boolean24.Type = "Fuse"
boolean24.addObjects([body27])
body29 = doc.addObject("PartDesign::Body", "Body028")

sketch27 = doc.addObject("Sketcher::SketchObject", "Sketch026")
body29.addObject(sketch27)
sketch27.AttachmentSupport = (doc.getObject("XY_Plane028"), [""])
sketch27.MapMode = "FlatFace"
sketch27.addGeometry(Part.Circle(App.Vector(38, 0, 0), App.Vector(0, 0, 1), 7), False)
sketch27.addConstraint([
    Sketcher.Constraint("PointOnObject", 0, 3, -1),
    Sketcher.Constraint("Diameter", 0, Q("14 mm")),
    Sketcher.Constraint("DistanceX", -1, 1, 0, 3, Q("38 mm")),
])
pad27 = doc.addObject("PartDesign::Pad", "Pad026")
body29.addObject(pad27)
pad27.Profile = sketch27
pad27.Length = 4
body30 = doc.addObject("PartDesign::Body", "Body029")

sketch28 = doc.addObject("Sketcher::SketchObject", "Sketch027")
body30.addObject(sketch28)
sketch28.AttachmentSupport = (doc.getObject("XY_Plane029"), [""])
sketch28.MapMode = "FlatFace"
sketch28.addGeometry(Part.Circle(App.Vector(38, 0, 0), App.Vector(0, 0, 1), 4.5), False)
sketch28.addConstraint([
    Sketcher.Constraint("PointOnObject", 0, 3, -1),
    Sketcher.Constraint("Diameter", 0, Q("9 mm")),
    Sketcher.Constraint("DistanceX", -1, 1, 0, 3, Q("38 mm")),
])
pad28 = doc.addObject("PartDesign::Pad", "Pad027")
body30.addObject(pad28)
pad28.Profile = sketch28
pad28.Length = 20
doc.recompute()

boolean25 = doc.addObject("PartDesign::Boolean", "Boolean024")
body30.addObject(boolean25)
boolean25.Type = "Fuse"
boolean25.addObjects([body29])
body31 = doc.addObject("PartDesign::Body", "Body030")

sketch29 = doc.addObject("Sketcher::SketchObject", "Sketch028")
body31.addObject(sketch29)
sketch29.AttachmentSupport = (doc.getObject("XY_Plane030"), [""])
sketch29.MapMode = "FlatFace"
sketch29.addGeometry(Part.Circle(App.Vector(-38, 0, 0), App.Vector(0, 0, 1), 7), False)
sketch29.addConstraint([
    Sketcher.Constraint("PointOnObject", 0, 3, -1),
    Sketcher.Constraint("Diameter", 0, Q("14 mm")),
    Sketcher.Constraint("DistanceX", 0, 3, -1, 1, Q("38 mm")),
])
pad29 = doc.addObject("PartDesign::Pad", "Pad028")
body31.addObject(pad29)
pad29.Profile = sketch29
pad29.Length = 4
body32 = doc.addObject("PartDesign::Body", "Body031")
body32.AllowCompound = True

sketch30 = doc.addObject("Sketcher::SketchObject", "Sketch029")
body32.addObject(sketch30)
sketch30.AttachmentSupport = (doc.getObject("XY_Plane031"), [""])
sketch30.MapMode = "FlatFace"
sketch30.addGeometry(Part.Circle(App.Vector(-38, 0, 0), App.Vector(0, 0, 1), 4.5), False)
sketch30.addConstraint([
    Sketcher.Constraint("PointOnObject", 0, 3, -1),
    Sketcher.Constraint("Diameter", 0, Q("9 mm")),
    Sketcher.Constraint("DistanceX", 0, 3, -1, 1, Q("38 mm")),
])
pad30 = doc.addObject("PartDesign::Pad", "Pad029")
body32.addObject(pad30)
pad30.Profile = sketch30
pad30.Length = 20
doc.recompute()

boolean26 = doc.addObject("PartDesign::Boolean", "Boolean025")
body32.addObject(boolean26)
boolean26.Type = "Fuse"
boolean26.addObjects([body31])
doc.recompute()

boolean27 = doc.addObject("PartDesign::Boolean", "Boolean026")
body32.addObject(boolean27)
boolean27.Type = "Fuse"
boolean27.addObjects([body30])
body33 = doc.addObject("PartDesign::Body", "Body032")

sketch31 = doc.addObject("Sketcher::SketchObject", "Sketch030")
body33.addObject(sketch31)
sketch31.AttachmentSupport = (doc.getObject("XY_Plane032"), [""])
sketch31.MapMode = "FlatFace"
sketch31.addGeometry(Part.Circle(App.Vector(38, 0, 0), App.Vector(0, 0, 1), 10), False)
sketch31.addConstraint([
    Sketcher.Constraint("PointOnObject", 0, 3, -1),
    Sketcher.Constraint("Diameter", 0, Q("20 mm")),
    Sketcher.Constraint("DistanceX", -1, 1, 0, 3, Q("38 mm")),
])
pad31 = doc.addObject("PartDesign::Pad", "Pad030")
body33.addObject(pad31)
pad31.Profile = sketch31
pad31.Length = 20
body34 = doc.addObject("PartDesign::Body", "Body033")

sketch32 = doc.addObject("Sketcher::SketchObject", "Sketch031")
body34.addObject(sketch32)
sketch32.AttachmentSupport = (doc.getObject("XY_Plane033"), [""])
sketch32.MapMode = "FlatFace"
sketch32.addGeometry(Part.Circle(App.Vector(-38, 0, 0), App.Vector(0, 0, 1), 10), False)
sketch32.addConstraint([
    Sketcher.Constraint("PointOnObject", 0, 3, -1),
    Sketcher.Constraint("Diameter", 0, Q("20 mm")),
    Sketcher.Constraint("DistanceX", 0, 3, -1, 1, Q("38 mm")),
])
pad32 = doc.addObject("PartDesign::Pad", "Pad031")
body34.addObject(pad32)
pad32.Profile = sketch32
pad32.Length = 20
body35 = doc.addObject("PartDesign::Body", "Body034")

sketch33 = doc.addObject("Sketcher::SketchObject", "Sketch032")
body35.addObject(sketch33)
sketch33.AttachmentSupport = (doc.getObject("XY_Plane034"), [""])
sketch33.MapMode = "FlatFace"
add_polygon(sketch33, [(-48, 0), (-48, -48), (48, -48), (48, 0)])
sketch33.addConstraint([
    Sketcher.Constraint("Vertical", 0),
    Sketcher.Constraint("Horizontal", 1),
    Sketcher.Constraint("Vertical", 2),
    Sketcher.Constraint("Horizontal", 3),
    Sketcher.Constraint("Symmetric", 2, 2, 3, 2, -1, 1),
    Sketcher.Constraint("DistanceX", 1, 1, 1, 2, Q("96 mm")),
    Sketcher.Constraint("DistanceY", 0, 2, 0, 1, Q("48 mm")),
])
pad33 = doc.addObject("PartDesign::Pad", "Pad032")
body35.addObject(pad33)
pad33.Profile = sketch33
pad33.Length = 20
body36 = doc.addObject("PartDesign::Body", "Body035")

sketch34 = doc.addObject("Sketcher::SketchObject", "Sketch033")
body36.addObject(sketch34)
sketch34.AttachmentSupport = (doc.getObject("XY_Plane035"), [""])
sketch34.MapMode = "FlatFace"
sketch34.addGeometry(Part.Circle(App.Vector(0, 0, 0), App.Vector(0, 0, 1), 28), False)
sketch34.addConstraint([
    Sketcher.Constraint("Coincident", 0, 3, -1, 1),
    Sketcher.Constraint("Diameter", 0, Q("56 mm")),
])
pad34 = doc.addObject("PartDesign::Pad", "Pad033")
body36.addObject(pad34)
pad34.Profile = sketch34
pad34.Length = 20
body37 = doc.addObject("PartDesign::Body", "Body036")

sketch35 = doc.addObject("Sketcher::SketchObject", "Sketch034")
body37.addObject(sketch35)
sketch35.AttachmentSupport = (doc.getObject("XY_Plane036"), [""])
sketch35.MapMode = "FlatFace"
sketch35.addGeometry(Part.Circle(App.Vector(0, 0, 0), App.Vector(0, 0, 1), 48), False)
sketch35.addConstraint([
    Sketcher.Constraint("Coincident", 0, 3, -1, 1),
    Sketcher.Constraint("Diameter", 0, Q("96 mm")),
])
pad35 = doc.addObject("PartDesign::Pad", "Pad034")
body37.addObject(pad35)
pad35.Profile = sketch35
pad35.Length = 20
doc.recompute()

boolean28 = doc.addObject("PartDesign::Boolean", "Boolean027")
body37.addObject(boolean28)
boolean28.Type = "Cut"
boolean28.addObjects([body36])
doc.recompute()

boolean29 = doc.addObject("PartDesign::Boolean", "Boolean028")
body37.addObject(boolean29)
boolean29.Type = "Cut"
boolean29.addObjects([body35])
doc.recompute()

boolean30 = doc.addObject("PartDesign::Boolean", "Boolean029")
body37.addObject(boolean30)
boolean30.Type = "Fuse"
boolean30.addObjects([body33])
doc.recompute()

boolean31 = doc.addObject("PartDesign::Boolean", "Boolean030")
body37.addObject(boolean31)
boolean31.Type = "Fuse"
boolean31.addObjects([body34])
doc.recompute()

boolean32 = doc.addObject("PartDesign::Boolean", "Boolean031")
body37.addObject(boolean32)
boolean32.Type = "Cut"
boolean32.addObjects([body32])
doc.recompute()

boolean33 = doc.addObject("PartDesign::Boolean", "Boolean032")
body37.addObject(boolean33)
boolean33.Type = "Cut"
boolean33.addObjects([body28])
doc.recompute()

boolean34 = doc.addObject("PartDesign::Boolean", "Boolean033")
body37.addObject(boolean34)
boolean34.Type = "Cut"
boolean34.addObjects([body24])
doc.recompute()

fillet = doc.addObject("PartDesign::Fillet", "Fillet")
body37.addObject(fillet)
fillet.Base = (boolean34, edges_at(boolean34, [(0, 28, 0), (0, 28, 20)]))
fillet.Radius = 3
doc.recompute()

fillet2 = doc.addObject("PartDesign::Fillet", "Fillet001")
body37.addObject(fillet2)
fillet2.Base = (fillet, edges_at(fillet, [
    (-38.145, 10, 0),
    (-38.145, 10, 0),
    (38.145, 10, 0),
    (38.145, 10, 0),
    (-27.124, 10, 0.849),
    (-26.153, 10, 4.983),
    (27.124, 10, 0.849),
    (-46.947, 10, 3.483),
    (26.153, 10, 4.983),
    (-47.736, 5.028, 6.967),
    (-47.736, 5.028, 13.033),
    (-46.947, 10, 16.517),
    (46.947, 10, 16.517),
    (47.736, 5.028, 13.033),
    (47.736, 5.028, 6.967),
    (46.947, 10, 3.483),
    (-27.534, 5.085, 6.967),
    (27.534, 5.085, 6.967),
    (-27.534, 5.085, 13.033),
    (-26.153, 10, 15.017),
    (27.534, 5.085, 13.033),
    (26.153, 10, 15.017),
    (-38, -10, 6.967),
    (-38, -10, 6.967),
    (-38, -10, 13.033),
    (-38, -10, 13.033),
    (-38.145, 10, 20),
    (-38.145, 10, 20),
    (38.145, 10, 20),
    (38.145, 10, 20),
    (47.736, 5.028, 13.033),
    (38, -10, 13.033),
    (38, -10, 13.033),
    (38, -10, 6.967),
    (38, -10, 6.967),
    (-27.124, 10, 19.151),
    (27.124, 10, 19.151),
]))
fillet2.Radius = 2
doc.recompute()

fillet3 = doc.addObject("PartDesign::Fillet", "Fillet002")
body37.addObject(fillet3)
fillet3.Base = (fillet2, edges_at(fillet2, [(46.39, 12.263, 0), (-47.583, 6.316, 11.033)]))
fillet3.Radius = 1
doc.recompute()

fillet4 = doc.addObject("PartDesign::Fillet", "Fillet003")
body37.addObject(fillet4)
fillet4.Base = (fillet3, edges_at(fillet3, [
    (26.4, 10.327, 17),
    (-26.523, 11.437, 19.126),
    (-42.5, 0, 6.967),
    (38, -8, 13.033),
]))
fillet4.Radius = 2

doc.recompute()
